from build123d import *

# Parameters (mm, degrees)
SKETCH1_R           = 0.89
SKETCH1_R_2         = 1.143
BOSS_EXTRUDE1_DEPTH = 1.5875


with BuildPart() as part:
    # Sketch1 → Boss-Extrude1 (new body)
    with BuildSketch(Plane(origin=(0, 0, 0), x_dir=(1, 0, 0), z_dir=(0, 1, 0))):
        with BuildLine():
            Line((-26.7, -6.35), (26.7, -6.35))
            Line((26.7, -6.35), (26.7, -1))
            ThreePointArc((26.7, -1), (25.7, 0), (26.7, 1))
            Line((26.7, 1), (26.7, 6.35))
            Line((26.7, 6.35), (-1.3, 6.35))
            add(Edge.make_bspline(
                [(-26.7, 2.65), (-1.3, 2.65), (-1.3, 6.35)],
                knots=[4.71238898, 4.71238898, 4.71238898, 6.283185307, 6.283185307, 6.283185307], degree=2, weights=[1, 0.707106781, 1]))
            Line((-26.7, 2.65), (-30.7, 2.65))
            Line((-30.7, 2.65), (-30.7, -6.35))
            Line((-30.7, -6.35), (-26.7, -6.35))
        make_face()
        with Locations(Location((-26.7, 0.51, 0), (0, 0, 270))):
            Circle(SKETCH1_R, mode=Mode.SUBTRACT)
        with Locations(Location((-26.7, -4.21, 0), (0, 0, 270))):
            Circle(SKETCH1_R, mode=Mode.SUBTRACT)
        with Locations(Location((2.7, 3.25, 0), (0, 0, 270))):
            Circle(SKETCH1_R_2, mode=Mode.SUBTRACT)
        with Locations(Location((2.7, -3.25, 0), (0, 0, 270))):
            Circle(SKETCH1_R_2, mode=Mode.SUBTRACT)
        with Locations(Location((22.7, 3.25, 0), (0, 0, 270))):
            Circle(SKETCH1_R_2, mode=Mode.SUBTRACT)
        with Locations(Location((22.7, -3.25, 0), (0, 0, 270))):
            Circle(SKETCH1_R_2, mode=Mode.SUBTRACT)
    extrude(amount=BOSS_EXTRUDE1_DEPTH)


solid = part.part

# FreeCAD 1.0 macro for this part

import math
import FreeCAD as App
import Part
import Sketcher
from FreeCAD import Vector
Q = App.Units.Quantity

doc = App.newDocument("Part")
body = doc.addObject("PartDesign::Body", "Body")

# Sketch on XZ plane
sketch1 = doc.addObject("Sketcher::SketchObject", "Sketch")
body.addObject(sketch1)
sketch1.AttachmentSupport = (doc.XZ_Plane, [""])
sketch1.MapMode = "FlatFace"
sketch1.addGeometry(Part.LineSegment(Vector(26.7, 6.35, 0), Vector(26.7, 1, 0)), False)
sketch1.addGeometry(Part.ArcOfCircle(Part.Circle(Vector(26.7, 0, 0), Vector(0, 0, 1), 1), math.radians(90), math.radians(270)), False)
sketch1.addGeometry(Part.LineSegment(Vector(26.7, -1, 0), Vector(26.7, -6.35, 0)), False)
sketch1.addGeometry(Part.LineSegment(Vector(26.7, -6.35, 0), Vector(-1.3, -6.35, 0)), False)
sketch1.addGeometry(Part.BSplineCurve([Vector(-26.7, -2.65, 0), Vector(-1.3, -2.65, 0), Vector(-1.3, -6.35, 0)], [3, 3], [4.71238898, 6.283185307], False, 2, [1, 0.707106781, 1], False), False)
sketch1.addGeometry(Part.LineSegment(Vector(-26.7, -2.65, 0), Vector(-30.7, -2.65, 0)), False)
sketch1.addGeometry(Part.LineSegment(Vector(-30.7, -2.65, 0), Vector(-30.7, 6.35, 0)), False)
sketch1.addGeometry(Part.LineSegment(Vector(-30.7, 6.35, 0), Vector(26.7, 6.35, 0)), False)
sketch1.addGeometry(Part.Circle(Vector(-26.7, 4.21, 0), Vector(0, 0, 1), 0.89), False)
sketch1.addGeometry(Part.Circle(Vector(2.7, 3.25, 0), Vector(0, 0, 1), 1.143), False)
sketch1.addGeometry(Part.Circle(Vector(22.7, 3.25, 0), Vector(0, 0, 1), 1.143), False)
sketch1.addGeometry(Part.Circle(Vector(-26.7, -0.51, 0), Vector(0, 0, 1), 0.89), False)
sketch1.addGeometry(Part.Circle(Vector(2.7, -3.25, 0), Vector(0, 0, 1), 1.143), False)
sketch1.addGeometry(Part.Circle(Vector(22.7, -3.25, 0), Vector(0, 0, 1), 1.143), False)
sketch1.addConstraint(Sketcher.Constraint("Block", 4))
sketch1.addConstraint(Sketcher.Constraint("Coincident", 0, 2, 1, 1))
sketch1.addConstraint(Sketcher.Constraint("Coincident", 1, 2, 2, 1))
sketch1.addConstraint(Sketcher.Constraint("Coincident", 2, 2, 3, 1))
sketch1.addConstraint(Sketcher.Constraint("Coincident", 3, 2, 4, 2))
sketch1.addConstraint(Sketcher.Constraint("Coincident", 4, 1, 5, 1))
sketch1.addConstraint(Sketcher.Constraint("Coincident", 5, 2, 6, 1))
sketch1.addConstraint(Sketcher.Constraint("Coincident", 6, 2, 7, 1))
sketch1.addConstraint(Sketcher.Constraint("Coincident", 7, 2, 0, 1))
sketch1.addConstraint(Sketcher.Constraint("Vertical", 0))
sketch1.addConstraint(Sketcher.Constraint("Vertical", 2))
sketch1.addConstraint(Sketcher.Constraint("Horizontal", 3))
sketch1.addConstraint(Sketcher.Constraint("Horizontal", 5))
sketch1.addConstraint(Sketcher.Constraint("Vertical", 6))
sketch1.addConstraint(Sketcher.Constraint("Horizontal", 7))
sketch1.addConstraint(Sketcher.Constraint("Equal", 9, 10))
sketch1.addConstraint(Sketcher.Constraint("Equal", 8, 11))
sketch1.addConstraint(Sketcher.Constraint("Equal", 10, 12))
sketch1.addConstraint(Sketcher.Constraint("Equal", 12, 13))
sketch1.addConstraint(Sketcher.Constraint("Symmetric", 9, 3, 12, 3, -1))
sketch1.addConstraint(Sketcher.Constraint("Symmetric", 10, 3, 13, 3, -1))
sketch1.addConstraint(Sketcher.Constraint("Symmetric", 0, 2, 1, 2, -1))
sketch1.addConstraint(Sketcher.Constraint("Horizontal", 9, 3, 10, 3))
sketch1.addConstraint(Sketcher.Constraint("Vertical", 8, 3, 11, 3))
sketch1.addConstraint(Sketcher.Constraint("Vertical", 1, 3, 0, 2))
sketch1.addConstraint(Sketcher.Constraint("Equal", 0, 2))
sketch1.addConstraint(Sketcher.Constraint("Radius", 1, Q("1 mm")))
sketch1.addConstraint(Sketcher.Constraint("Diameter", 8, Q("1.78 mm")))
sketch1.addConstraint(Sketcher.Constraint("DistanceX", 3, 2, 3, 1, Q("28 mm")))
sketch1.addConstraint(Sketcher.Constraint("DistanceX", 5, 2, 5, 1, Q("4 mm")))
sketch1.addConstraint(Sketcher.Constraint("Diameter", 9, Q("2.286 mm")))
sketch1.addConstraint(Sketcher.Constraint("DistanceX", 9, 3, 1, 3, Q("24 mm")))
sketch1.addConstraint(Sketcher.Constraint("DistanceX", 10, 3, 1, 3, Q("4 mm")))
sketch1.addConstraint(Sketcher.Constraint("DistanceX", 5, 2, 11, 3, Q("4 mm")))
sketch1.addConstraint(Sketcher.Constraint("DistanceY", 12, 3, 9, 3, Q("6.5 mm")))
sketch1.addConstraint(Sketcher.Constraint("DistanceY", -1, 1, 8, 3, Q("4.21 mm")))
sketch1.addConstraint(Sketcher.Constraint("DistanceY", 11, 3, -1, 1, Q("0.51 mm")))
pad1 = doc.addObject("PartDesign::Pad", "Pad")
body.addObject(pad1)
pad1.Profile = sketch1
pad1.Length = 1.5875
pad1.Reversed = True

doc.recompute()
